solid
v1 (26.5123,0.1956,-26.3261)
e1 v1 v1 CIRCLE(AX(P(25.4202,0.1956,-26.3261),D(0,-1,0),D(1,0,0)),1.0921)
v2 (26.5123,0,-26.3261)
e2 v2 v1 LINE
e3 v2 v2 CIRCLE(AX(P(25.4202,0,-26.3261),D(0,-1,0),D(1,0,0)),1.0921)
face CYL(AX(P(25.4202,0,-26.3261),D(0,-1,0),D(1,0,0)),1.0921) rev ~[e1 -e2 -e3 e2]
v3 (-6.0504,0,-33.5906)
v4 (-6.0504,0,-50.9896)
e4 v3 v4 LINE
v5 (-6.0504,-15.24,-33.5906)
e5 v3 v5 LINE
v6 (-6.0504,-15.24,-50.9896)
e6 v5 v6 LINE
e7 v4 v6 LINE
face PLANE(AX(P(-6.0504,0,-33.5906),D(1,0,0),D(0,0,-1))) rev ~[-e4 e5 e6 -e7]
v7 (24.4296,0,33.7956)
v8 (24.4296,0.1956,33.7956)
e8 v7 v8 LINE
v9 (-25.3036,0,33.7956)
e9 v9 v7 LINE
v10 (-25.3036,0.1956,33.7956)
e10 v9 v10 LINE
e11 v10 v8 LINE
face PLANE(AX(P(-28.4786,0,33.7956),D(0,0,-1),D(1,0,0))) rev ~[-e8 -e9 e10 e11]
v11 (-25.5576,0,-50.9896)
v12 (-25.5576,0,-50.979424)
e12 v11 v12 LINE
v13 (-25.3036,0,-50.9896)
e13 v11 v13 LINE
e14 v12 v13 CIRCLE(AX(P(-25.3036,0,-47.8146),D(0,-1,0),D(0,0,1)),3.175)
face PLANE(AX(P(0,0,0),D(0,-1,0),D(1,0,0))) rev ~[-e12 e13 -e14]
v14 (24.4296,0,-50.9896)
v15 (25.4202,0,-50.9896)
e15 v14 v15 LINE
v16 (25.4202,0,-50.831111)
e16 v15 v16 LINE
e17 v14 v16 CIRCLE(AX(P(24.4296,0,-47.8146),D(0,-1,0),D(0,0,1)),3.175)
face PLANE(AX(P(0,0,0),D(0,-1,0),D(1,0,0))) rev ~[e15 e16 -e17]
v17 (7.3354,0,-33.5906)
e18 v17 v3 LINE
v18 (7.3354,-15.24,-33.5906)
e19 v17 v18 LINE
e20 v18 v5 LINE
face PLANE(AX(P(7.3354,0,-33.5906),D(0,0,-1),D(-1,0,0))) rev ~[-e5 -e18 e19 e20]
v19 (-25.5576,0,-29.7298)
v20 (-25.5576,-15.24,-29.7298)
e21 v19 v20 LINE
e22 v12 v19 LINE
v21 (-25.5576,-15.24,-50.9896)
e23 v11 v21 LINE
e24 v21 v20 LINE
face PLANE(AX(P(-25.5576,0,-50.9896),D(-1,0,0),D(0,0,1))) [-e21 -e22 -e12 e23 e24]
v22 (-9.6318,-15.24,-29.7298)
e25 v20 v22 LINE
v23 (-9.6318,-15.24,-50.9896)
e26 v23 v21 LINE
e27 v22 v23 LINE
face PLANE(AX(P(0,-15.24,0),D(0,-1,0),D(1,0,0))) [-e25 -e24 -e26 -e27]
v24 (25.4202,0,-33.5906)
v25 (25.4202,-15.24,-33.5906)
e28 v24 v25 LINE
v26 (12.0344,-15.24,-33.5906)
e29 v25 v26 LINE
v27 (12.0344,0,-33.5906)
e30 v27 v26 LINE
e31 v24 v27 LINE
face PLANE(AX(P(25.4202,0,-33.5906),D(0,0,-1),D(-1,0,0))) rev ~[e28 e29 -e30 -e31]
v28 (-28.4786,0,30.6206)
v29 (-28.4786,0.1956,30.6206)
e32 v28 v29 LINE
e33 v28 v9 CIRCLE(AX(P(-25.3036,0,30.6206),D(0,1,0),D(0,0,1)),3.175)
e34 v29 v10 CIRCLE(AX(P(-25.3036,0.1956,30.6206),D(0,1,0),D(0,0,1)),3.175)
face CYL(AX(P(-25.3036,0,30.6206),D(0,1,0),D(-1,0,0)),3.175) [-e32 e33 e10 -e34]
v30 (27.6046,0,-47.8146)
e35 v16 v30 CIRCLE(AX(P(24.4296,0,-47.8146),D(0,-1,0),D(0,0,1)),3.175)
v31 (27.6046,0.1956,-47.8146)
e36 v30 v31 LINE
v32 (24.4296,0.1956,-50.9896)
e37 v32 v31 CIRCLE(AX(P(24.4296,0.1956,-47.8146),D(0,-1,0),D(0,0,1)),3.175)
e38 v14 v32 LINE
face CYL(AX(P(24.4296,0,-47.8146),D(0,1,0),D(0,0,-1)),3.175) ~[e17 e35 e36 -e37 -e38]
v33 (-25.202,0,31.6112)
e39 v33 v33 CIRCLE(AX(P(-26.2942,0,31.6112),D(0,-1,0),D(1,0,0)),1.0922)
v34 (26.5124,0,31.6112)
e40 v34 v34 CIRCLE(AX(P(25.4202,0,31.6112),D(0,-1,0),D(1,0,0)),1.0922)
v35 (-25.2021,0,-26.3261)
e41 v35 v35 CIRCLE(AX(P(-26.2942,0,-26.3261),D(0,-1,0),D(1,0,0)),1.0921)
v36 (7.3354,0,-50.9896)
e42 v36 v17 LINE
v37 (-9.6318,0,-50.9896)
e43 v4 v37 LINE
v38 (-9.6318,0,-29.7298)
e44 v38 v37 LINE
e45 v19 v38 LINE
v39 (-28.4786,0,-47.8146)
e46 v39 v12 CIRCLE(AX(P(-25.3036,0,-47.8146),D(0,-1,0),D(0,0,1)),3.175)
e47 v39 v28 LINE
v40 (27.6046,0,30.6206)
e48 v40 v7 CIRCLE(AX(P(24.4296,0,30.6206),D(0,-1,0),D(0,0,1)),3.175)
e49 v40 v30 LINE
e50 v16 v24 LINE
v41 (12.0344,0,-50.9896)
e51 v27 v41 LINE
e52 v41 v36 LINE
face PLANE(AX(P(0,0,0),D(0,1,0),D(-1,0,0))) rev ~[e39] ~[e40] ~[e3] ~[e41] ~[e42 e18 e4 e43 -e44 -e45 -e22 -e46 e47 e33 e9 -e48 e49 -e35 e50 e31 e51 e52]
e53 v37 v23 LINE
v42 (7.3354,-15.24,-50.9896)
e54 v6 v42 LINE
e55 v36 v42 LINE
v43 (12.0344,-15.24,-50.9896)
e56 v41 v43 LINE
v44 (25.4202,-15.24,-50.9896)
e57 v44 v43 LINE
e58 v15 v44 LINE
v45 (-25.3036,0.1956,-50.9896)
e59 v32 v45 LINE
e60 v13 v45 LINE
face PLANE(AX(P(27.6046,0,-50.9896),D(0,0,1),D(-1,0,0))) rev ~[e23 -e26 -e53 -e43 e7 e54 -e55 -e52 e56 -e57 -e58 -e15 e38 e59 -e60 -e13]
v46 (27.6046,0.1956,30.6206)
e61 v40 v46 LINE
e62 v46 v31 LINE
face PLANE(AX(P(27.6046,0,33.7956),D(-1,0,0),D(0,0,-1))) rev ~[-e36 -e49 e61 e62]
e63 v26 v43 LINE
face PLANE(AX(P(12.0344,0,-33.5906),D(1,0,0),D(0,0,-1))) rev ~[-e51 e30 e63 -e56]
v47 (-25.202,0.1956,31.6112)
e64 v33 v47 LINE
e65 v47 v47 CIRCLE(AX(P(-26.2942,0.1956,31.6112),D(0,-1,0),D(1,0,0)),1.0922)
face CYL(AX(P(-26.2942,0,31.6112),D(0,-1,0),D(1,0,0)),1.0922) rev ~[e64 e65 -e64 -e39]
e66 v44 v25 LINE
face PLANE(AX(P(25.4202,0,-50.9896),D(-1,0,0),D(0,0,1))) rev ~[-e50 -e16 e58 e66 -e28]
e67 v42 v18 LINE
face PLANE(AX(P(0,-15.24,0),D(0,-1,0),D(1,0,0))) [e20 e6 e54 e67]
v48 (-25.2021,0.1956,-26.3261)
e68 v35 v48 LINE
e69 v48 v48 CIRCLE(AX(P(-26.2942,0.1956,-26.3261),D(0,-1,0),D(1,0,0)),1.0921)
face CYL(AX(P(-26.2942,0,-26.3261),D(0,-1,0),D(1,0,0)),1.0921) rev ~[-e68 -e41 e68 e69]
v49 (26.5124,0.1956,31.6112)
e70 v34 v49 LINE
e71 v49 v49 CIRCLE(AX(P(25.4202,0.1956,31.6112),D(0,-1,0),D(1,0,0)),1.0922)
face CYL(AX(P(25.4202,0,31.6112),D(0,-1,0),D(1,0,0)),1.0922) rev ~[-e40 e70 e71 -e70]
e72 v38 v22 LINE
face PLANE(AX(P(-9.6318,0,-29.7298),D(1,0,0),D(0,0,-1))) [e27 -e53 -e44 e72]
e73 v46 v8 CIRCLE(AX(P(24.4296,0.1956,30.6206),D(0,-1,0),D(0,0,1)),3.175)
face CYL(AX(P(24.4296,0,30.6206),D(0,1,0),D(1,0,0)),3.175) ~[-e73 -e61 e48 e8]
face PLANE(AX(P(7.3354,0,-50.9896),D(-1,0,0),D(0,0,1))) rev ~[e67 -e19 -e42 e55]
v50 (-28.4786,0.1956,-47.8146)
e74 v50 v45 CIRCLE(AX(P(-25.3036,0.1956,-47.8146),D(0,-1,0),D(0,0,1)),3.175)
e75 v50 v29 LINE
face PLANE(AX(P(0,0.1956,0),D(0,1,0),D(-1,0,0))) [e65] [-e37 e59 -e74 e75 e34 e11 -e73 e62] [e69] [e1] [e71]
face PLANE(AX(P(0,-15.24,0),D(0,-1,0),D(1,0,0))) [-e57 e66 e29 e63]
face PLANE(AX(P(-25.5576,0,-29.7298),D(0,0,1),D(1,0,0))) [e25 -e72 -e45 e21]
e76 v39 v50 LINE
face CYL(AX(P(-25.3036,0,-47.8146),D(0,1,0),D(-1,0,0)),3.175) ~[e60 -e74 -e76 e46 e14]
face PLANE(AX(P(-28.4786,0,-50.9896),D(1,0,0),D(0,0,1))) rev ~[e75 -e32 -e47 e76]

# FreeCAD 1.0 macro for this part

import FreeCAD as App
import Part
import Sketcher
from FreeCAD import Vector
Q = App.Units.Quantity


def edges_at(feature, points):
    """Names of the edges that pass closest to the given points."""
    edges = feature.Shape.Edges
    near = lambda p: min(range(len(edges)), key=lambda i: edges[i].distToShape(Part.Vertex(*p))[0])
    return sorted({f"Edge{near(p) + 1}" for p in points})

doc = App.newDocument("Part")
body = doc.addObject("PartDesign::Body", "Body")

# Sketch on XZ plane
sketch1 = body.newObject("Sketcher::SketchObject", "Sketch")
sketch1.AttachmentSupport = (doc.getObject("XZ_Plane"), [""])
sketch1.MapMode = "FlatFace"
sketch1.addGeometry([
    Part.LineSegment(Vector(-28.4786, -50.9896, 0), Vector(-28.4786, 33.7956, 0)),
    Part.LineSegment(Vector(-28.4786, 33.7956, 0), Vector(27.6046, 33.7956, 0)),
    Part.LineSegment(Vector(27.6046, 33.7956, 0), Vector(27.6046, -50.9896, 0)),
    Part.LineSegment(Vector(27.6046, -50.9896, 0), Vector(-28.4786, -50.9896, 0)),
], False)
sketch1.addConstraint([
    Sketcher.Constraint("Coincident", 0, 2, 1, 1),
    Sketcher.Constraint("Coincident", 1, 2, 2, 1),
    Sketcher.Constraint("Coincident", 2, 2, 3, 1),
    Sketcher.Constraint("Coincident", 3, 2, 0, 1),
    Sketcher.Constraint("Vertical", 0),
    Sketcher.Constraint("Horizontal", 1),
    Sketcher.Constraint("Vertical", 2),
    Sketcher.Constraint("Horizontal", 3),
    Sketcher.Constraint("DistanceX", 1, 1, 1, 2, Q("2.208 in")),
    Sketcher.Constraint("DistanceY", 0, 1, 0, 2, Q("3.338 in")),
    Sketcher.Constraint("DistanceX", 0, 2, -1, 1, Q("1.1212 in")),
    Sketcher.Constraint("DistanceY", -1, 1, 0, 2, Q("33.7956 mm")),
])
pad1 = body.newObject("PartDesign::Pad", "Pad")
pad1.Profile = sketch1
pad1.Length = Q("0.0077008 in")
pad1.Reversed = True
doc.recompute()

fillet = body.newObject("PartDesign::Fillet", "Fillet")
fillet.Base = (pad1, edges_at(pad1, [
    (27.605, 0.098, -50.99),
    (-28.479, 0.098, -50.99),
    (-28.479, 0.098, 33.796),
    (27.605, 0.098, 33.796),
]))
fillet.Radius = Q("0.125 in")

# Sketch on XZ plane
sketch2 = body.newObject("Sketcher::SketchObject", "Sketch001")
sketch2.AttachmentSupport = (doc.getObject("XZ_Plane"), [""])
sketch2.MapMode = "FlatFace"
sketch2.addGeometry([
    Part.Circle(Vector(-26.2942, 31.6112, 0), Vector(0, 0, 1), 1.0922),
    Part.Circle(Vector(25.4202, 31.6112, 0), Vector(0, 0, 1), 1.0922),
    Part.Circle(Vector(-26.2942, -26.3261, 0), Vector(0, 0, 1), 1.0921),
    Part.Circle(Vector(25.4202, -26.3261, 0), Vector(0, 0, 1), 1.0921),
], False)
sketch2.addConstraint([
    Sketcher.Constraint("Equal", 0, 1),
    Sketcher.Constraint("Equal", 1, 2),
    Sketcher.Constraint("Equal", 2, 3),
    Sketcher.Constraint("Horizontal", 0, 3, 1, 3),
    Sketcher.Constraint("Horizontal", 2, 3, 3, 3),
    Sketcher.Constraint("Vertical", 0, 3, 2, 3),
    Sketcher.Constraint("Vertical", 1, 3, 3, 3),
    Sketcher.Constraint("Diameter", 0, Q("0.086 in")),
    Sketcher.Constraint("DistanceX", 0, 3, 1, 3, Q("2.036 in")),
    Sketcher.Constraint("DistanceY", 2, 3, 0, 3, Q("2.281 in")),
    Sketcher.Constraint("DistanceX", 0, 3, -1, 1, Q("1.0352 in")),
    Sketcher.Constraint("DistanceY", -1, 1, 0, 3, Q("31.6112 mm")),
])
pocket1 = body.newObject("PartDesign::Pocket", "Pocket")
pocket1.Profile = sketch2
pocket1.Length = Q("0.0077008 in")

# Sketch on XZ plane
sketch3 = body.newObject("Sketcher::SketchObject", "Sketch002")
sketch3.AttachmentSupport = (doc.getObject("XZ_Plane"), [""])
sketch3.MapMode = "FlatFace"
sketch3.addGeometry([
    Part.LineSegment(Vector(25.4202, -50.9896, 0), Vector(25.4202, -33.5906, 0)),  # 0
    Part.LineSegment(Vector(25.4202, -33.5906, 0), Vector(12.0344, -33.5906, 0)),  # 1
    Part.LineSegment(Vector(12.0344, -33.5906, 0), Vector(12.0344, -50.9896, 0)),  # 2
    Part.LineSegment(Vector(12.0344, -50.9896, 0), Vector(25.4202, -50.9896, 0)),  # 3
    Part.LineSegment(Vector(-25.5576, -50.9896, 0), Vector(-9.6318, -50.9896, 0)),  # 4
    Part.LineSegment(Vector(-9.6318, -50.9896, 0), Vector(-9.6318, -29.7298, 0)),  # 5
    Part.LineSegment(Vector(-9.6318, -29.7298, 0), Vector(-25.5576, -29.7298, 0)),  # 6
    Part.LineSegment(Vector(-25.5576, -29.7298, 0), Vector(-25.5576, -50.9896, 0)),  # 7
    Part.LineSegment(Vector(-6.0504, -50.9896, 0), Vector(7.3354, -50.9896, 0)),  # 8
    Part.LineSegment(Vector(7.3354, -50.9896, 0), Vector(7.3354, -33.5906, 0)),  # 9
    Part.LineSegment(Vector(7.3354, -33.5906, 0), Vector(-6.0504, -33.5906, 0)),  # 10
    Part.LineSegment(Vector(-6.0504, -33.5906, 0), Vector(-6.0504, -50.9896, 0)),  # 11
], False)
sketch3.addConstraint([
    Sketcher.Constraint("Coincident", 0, 2, 1, 1),
    Sketcher.Constraint("Coincident", 1, 2, 2, 1),
    Sketcher.Constraint("Coincident", 2, 2, 3, 1),
    Sketcher.Constraint("Coincident", 3, 2, 0, 1),
    Sketcher.Constraint("Coincident", 4, 2, 5, 1),
    Sketcher.Constraint("Coincident", 5, 2, 6, 1),
    Sketcher.Constraint("Coincident", 6, 2, 7, 1),
    Sketcher.Constraint("Coincident", 7, 2, 4, 1),
    Sketcher.Constraint("Coincident", 8, 2, 9, 1),
    Sketcher.Constraint("Coincident", 9, 2, 10, 1),
    Sketcher.Constraint("Coincident", 10, 2, 11, 1),
    Sketcher.Constraint("Coincident", 11, 2, 8, 1),
    Sketcher.Constraint("Vertical", 0),
    Sketcher.Constraint("Horizontal", 1),
    Sketcher.Constraint("Vertical", 2),
    Sketcher.Constraint("Horizontal", 3),
    Sketcher.Constraint("Horizontal", 4),
    Sketcher.Constraint("Vertical", 5),
    Sketcher.Constraint("Horizontal", 6),
    Sketcher.Constraint("Vertical", 7),
    Sketcher.Constraint("Horizontal", 8),
    Sketcher.Constraint("Vertical", 9),
    Sketcher.Constraint("Horizontal", 10),
    Sketcher.Constraint("Vertical", 11),
    Sketcher.Constraint("Horizontal", 3, 2, 4, 2),
    Sketcher.Constraint("Horizontal", 7, 2, 8, 2),
    Sketcher.Constraint("Horizontal", 1, 2, 9, 2),
    Sketcher.Constraint("Equal", 3, 8),
    Sketcher.Constraint("DistanceX", 1, 2, 1, 1, Q("0.527 in")),
    Sketcher.Constraint("DistanceX", 4, 1, 4, 2, Q("0.627 in")),
    Sketcher.Constraint("DistanceY", 0, 1, 0, 2, Q("0.685 in")),
    Sketcher.Constraint("DistanceY", 5, 1, 5, 2, Q("0.837 in")),
    Sketcher.Constraint("DistanceX", 8, 2, 2, 2, Q("0.185 in")),
    Sketcher.Constraint("DistanceX", 5, 2, 10, 2, Q("0.141 in")),
    Sketcher.Constraint("DistanceX", -1, 1, 0, 2, Q("1.0008 in")),
    Sketcher.Constraint("DistanceY", 0, 2, -1, 1, Q("33.5906 mm")),
])
pad2 = body.newObject("PartDesign::Pad", "Pad001")
pad2.Profile = sketch3
pad2.Length = Q("0.6 in")

doc.recompute()
